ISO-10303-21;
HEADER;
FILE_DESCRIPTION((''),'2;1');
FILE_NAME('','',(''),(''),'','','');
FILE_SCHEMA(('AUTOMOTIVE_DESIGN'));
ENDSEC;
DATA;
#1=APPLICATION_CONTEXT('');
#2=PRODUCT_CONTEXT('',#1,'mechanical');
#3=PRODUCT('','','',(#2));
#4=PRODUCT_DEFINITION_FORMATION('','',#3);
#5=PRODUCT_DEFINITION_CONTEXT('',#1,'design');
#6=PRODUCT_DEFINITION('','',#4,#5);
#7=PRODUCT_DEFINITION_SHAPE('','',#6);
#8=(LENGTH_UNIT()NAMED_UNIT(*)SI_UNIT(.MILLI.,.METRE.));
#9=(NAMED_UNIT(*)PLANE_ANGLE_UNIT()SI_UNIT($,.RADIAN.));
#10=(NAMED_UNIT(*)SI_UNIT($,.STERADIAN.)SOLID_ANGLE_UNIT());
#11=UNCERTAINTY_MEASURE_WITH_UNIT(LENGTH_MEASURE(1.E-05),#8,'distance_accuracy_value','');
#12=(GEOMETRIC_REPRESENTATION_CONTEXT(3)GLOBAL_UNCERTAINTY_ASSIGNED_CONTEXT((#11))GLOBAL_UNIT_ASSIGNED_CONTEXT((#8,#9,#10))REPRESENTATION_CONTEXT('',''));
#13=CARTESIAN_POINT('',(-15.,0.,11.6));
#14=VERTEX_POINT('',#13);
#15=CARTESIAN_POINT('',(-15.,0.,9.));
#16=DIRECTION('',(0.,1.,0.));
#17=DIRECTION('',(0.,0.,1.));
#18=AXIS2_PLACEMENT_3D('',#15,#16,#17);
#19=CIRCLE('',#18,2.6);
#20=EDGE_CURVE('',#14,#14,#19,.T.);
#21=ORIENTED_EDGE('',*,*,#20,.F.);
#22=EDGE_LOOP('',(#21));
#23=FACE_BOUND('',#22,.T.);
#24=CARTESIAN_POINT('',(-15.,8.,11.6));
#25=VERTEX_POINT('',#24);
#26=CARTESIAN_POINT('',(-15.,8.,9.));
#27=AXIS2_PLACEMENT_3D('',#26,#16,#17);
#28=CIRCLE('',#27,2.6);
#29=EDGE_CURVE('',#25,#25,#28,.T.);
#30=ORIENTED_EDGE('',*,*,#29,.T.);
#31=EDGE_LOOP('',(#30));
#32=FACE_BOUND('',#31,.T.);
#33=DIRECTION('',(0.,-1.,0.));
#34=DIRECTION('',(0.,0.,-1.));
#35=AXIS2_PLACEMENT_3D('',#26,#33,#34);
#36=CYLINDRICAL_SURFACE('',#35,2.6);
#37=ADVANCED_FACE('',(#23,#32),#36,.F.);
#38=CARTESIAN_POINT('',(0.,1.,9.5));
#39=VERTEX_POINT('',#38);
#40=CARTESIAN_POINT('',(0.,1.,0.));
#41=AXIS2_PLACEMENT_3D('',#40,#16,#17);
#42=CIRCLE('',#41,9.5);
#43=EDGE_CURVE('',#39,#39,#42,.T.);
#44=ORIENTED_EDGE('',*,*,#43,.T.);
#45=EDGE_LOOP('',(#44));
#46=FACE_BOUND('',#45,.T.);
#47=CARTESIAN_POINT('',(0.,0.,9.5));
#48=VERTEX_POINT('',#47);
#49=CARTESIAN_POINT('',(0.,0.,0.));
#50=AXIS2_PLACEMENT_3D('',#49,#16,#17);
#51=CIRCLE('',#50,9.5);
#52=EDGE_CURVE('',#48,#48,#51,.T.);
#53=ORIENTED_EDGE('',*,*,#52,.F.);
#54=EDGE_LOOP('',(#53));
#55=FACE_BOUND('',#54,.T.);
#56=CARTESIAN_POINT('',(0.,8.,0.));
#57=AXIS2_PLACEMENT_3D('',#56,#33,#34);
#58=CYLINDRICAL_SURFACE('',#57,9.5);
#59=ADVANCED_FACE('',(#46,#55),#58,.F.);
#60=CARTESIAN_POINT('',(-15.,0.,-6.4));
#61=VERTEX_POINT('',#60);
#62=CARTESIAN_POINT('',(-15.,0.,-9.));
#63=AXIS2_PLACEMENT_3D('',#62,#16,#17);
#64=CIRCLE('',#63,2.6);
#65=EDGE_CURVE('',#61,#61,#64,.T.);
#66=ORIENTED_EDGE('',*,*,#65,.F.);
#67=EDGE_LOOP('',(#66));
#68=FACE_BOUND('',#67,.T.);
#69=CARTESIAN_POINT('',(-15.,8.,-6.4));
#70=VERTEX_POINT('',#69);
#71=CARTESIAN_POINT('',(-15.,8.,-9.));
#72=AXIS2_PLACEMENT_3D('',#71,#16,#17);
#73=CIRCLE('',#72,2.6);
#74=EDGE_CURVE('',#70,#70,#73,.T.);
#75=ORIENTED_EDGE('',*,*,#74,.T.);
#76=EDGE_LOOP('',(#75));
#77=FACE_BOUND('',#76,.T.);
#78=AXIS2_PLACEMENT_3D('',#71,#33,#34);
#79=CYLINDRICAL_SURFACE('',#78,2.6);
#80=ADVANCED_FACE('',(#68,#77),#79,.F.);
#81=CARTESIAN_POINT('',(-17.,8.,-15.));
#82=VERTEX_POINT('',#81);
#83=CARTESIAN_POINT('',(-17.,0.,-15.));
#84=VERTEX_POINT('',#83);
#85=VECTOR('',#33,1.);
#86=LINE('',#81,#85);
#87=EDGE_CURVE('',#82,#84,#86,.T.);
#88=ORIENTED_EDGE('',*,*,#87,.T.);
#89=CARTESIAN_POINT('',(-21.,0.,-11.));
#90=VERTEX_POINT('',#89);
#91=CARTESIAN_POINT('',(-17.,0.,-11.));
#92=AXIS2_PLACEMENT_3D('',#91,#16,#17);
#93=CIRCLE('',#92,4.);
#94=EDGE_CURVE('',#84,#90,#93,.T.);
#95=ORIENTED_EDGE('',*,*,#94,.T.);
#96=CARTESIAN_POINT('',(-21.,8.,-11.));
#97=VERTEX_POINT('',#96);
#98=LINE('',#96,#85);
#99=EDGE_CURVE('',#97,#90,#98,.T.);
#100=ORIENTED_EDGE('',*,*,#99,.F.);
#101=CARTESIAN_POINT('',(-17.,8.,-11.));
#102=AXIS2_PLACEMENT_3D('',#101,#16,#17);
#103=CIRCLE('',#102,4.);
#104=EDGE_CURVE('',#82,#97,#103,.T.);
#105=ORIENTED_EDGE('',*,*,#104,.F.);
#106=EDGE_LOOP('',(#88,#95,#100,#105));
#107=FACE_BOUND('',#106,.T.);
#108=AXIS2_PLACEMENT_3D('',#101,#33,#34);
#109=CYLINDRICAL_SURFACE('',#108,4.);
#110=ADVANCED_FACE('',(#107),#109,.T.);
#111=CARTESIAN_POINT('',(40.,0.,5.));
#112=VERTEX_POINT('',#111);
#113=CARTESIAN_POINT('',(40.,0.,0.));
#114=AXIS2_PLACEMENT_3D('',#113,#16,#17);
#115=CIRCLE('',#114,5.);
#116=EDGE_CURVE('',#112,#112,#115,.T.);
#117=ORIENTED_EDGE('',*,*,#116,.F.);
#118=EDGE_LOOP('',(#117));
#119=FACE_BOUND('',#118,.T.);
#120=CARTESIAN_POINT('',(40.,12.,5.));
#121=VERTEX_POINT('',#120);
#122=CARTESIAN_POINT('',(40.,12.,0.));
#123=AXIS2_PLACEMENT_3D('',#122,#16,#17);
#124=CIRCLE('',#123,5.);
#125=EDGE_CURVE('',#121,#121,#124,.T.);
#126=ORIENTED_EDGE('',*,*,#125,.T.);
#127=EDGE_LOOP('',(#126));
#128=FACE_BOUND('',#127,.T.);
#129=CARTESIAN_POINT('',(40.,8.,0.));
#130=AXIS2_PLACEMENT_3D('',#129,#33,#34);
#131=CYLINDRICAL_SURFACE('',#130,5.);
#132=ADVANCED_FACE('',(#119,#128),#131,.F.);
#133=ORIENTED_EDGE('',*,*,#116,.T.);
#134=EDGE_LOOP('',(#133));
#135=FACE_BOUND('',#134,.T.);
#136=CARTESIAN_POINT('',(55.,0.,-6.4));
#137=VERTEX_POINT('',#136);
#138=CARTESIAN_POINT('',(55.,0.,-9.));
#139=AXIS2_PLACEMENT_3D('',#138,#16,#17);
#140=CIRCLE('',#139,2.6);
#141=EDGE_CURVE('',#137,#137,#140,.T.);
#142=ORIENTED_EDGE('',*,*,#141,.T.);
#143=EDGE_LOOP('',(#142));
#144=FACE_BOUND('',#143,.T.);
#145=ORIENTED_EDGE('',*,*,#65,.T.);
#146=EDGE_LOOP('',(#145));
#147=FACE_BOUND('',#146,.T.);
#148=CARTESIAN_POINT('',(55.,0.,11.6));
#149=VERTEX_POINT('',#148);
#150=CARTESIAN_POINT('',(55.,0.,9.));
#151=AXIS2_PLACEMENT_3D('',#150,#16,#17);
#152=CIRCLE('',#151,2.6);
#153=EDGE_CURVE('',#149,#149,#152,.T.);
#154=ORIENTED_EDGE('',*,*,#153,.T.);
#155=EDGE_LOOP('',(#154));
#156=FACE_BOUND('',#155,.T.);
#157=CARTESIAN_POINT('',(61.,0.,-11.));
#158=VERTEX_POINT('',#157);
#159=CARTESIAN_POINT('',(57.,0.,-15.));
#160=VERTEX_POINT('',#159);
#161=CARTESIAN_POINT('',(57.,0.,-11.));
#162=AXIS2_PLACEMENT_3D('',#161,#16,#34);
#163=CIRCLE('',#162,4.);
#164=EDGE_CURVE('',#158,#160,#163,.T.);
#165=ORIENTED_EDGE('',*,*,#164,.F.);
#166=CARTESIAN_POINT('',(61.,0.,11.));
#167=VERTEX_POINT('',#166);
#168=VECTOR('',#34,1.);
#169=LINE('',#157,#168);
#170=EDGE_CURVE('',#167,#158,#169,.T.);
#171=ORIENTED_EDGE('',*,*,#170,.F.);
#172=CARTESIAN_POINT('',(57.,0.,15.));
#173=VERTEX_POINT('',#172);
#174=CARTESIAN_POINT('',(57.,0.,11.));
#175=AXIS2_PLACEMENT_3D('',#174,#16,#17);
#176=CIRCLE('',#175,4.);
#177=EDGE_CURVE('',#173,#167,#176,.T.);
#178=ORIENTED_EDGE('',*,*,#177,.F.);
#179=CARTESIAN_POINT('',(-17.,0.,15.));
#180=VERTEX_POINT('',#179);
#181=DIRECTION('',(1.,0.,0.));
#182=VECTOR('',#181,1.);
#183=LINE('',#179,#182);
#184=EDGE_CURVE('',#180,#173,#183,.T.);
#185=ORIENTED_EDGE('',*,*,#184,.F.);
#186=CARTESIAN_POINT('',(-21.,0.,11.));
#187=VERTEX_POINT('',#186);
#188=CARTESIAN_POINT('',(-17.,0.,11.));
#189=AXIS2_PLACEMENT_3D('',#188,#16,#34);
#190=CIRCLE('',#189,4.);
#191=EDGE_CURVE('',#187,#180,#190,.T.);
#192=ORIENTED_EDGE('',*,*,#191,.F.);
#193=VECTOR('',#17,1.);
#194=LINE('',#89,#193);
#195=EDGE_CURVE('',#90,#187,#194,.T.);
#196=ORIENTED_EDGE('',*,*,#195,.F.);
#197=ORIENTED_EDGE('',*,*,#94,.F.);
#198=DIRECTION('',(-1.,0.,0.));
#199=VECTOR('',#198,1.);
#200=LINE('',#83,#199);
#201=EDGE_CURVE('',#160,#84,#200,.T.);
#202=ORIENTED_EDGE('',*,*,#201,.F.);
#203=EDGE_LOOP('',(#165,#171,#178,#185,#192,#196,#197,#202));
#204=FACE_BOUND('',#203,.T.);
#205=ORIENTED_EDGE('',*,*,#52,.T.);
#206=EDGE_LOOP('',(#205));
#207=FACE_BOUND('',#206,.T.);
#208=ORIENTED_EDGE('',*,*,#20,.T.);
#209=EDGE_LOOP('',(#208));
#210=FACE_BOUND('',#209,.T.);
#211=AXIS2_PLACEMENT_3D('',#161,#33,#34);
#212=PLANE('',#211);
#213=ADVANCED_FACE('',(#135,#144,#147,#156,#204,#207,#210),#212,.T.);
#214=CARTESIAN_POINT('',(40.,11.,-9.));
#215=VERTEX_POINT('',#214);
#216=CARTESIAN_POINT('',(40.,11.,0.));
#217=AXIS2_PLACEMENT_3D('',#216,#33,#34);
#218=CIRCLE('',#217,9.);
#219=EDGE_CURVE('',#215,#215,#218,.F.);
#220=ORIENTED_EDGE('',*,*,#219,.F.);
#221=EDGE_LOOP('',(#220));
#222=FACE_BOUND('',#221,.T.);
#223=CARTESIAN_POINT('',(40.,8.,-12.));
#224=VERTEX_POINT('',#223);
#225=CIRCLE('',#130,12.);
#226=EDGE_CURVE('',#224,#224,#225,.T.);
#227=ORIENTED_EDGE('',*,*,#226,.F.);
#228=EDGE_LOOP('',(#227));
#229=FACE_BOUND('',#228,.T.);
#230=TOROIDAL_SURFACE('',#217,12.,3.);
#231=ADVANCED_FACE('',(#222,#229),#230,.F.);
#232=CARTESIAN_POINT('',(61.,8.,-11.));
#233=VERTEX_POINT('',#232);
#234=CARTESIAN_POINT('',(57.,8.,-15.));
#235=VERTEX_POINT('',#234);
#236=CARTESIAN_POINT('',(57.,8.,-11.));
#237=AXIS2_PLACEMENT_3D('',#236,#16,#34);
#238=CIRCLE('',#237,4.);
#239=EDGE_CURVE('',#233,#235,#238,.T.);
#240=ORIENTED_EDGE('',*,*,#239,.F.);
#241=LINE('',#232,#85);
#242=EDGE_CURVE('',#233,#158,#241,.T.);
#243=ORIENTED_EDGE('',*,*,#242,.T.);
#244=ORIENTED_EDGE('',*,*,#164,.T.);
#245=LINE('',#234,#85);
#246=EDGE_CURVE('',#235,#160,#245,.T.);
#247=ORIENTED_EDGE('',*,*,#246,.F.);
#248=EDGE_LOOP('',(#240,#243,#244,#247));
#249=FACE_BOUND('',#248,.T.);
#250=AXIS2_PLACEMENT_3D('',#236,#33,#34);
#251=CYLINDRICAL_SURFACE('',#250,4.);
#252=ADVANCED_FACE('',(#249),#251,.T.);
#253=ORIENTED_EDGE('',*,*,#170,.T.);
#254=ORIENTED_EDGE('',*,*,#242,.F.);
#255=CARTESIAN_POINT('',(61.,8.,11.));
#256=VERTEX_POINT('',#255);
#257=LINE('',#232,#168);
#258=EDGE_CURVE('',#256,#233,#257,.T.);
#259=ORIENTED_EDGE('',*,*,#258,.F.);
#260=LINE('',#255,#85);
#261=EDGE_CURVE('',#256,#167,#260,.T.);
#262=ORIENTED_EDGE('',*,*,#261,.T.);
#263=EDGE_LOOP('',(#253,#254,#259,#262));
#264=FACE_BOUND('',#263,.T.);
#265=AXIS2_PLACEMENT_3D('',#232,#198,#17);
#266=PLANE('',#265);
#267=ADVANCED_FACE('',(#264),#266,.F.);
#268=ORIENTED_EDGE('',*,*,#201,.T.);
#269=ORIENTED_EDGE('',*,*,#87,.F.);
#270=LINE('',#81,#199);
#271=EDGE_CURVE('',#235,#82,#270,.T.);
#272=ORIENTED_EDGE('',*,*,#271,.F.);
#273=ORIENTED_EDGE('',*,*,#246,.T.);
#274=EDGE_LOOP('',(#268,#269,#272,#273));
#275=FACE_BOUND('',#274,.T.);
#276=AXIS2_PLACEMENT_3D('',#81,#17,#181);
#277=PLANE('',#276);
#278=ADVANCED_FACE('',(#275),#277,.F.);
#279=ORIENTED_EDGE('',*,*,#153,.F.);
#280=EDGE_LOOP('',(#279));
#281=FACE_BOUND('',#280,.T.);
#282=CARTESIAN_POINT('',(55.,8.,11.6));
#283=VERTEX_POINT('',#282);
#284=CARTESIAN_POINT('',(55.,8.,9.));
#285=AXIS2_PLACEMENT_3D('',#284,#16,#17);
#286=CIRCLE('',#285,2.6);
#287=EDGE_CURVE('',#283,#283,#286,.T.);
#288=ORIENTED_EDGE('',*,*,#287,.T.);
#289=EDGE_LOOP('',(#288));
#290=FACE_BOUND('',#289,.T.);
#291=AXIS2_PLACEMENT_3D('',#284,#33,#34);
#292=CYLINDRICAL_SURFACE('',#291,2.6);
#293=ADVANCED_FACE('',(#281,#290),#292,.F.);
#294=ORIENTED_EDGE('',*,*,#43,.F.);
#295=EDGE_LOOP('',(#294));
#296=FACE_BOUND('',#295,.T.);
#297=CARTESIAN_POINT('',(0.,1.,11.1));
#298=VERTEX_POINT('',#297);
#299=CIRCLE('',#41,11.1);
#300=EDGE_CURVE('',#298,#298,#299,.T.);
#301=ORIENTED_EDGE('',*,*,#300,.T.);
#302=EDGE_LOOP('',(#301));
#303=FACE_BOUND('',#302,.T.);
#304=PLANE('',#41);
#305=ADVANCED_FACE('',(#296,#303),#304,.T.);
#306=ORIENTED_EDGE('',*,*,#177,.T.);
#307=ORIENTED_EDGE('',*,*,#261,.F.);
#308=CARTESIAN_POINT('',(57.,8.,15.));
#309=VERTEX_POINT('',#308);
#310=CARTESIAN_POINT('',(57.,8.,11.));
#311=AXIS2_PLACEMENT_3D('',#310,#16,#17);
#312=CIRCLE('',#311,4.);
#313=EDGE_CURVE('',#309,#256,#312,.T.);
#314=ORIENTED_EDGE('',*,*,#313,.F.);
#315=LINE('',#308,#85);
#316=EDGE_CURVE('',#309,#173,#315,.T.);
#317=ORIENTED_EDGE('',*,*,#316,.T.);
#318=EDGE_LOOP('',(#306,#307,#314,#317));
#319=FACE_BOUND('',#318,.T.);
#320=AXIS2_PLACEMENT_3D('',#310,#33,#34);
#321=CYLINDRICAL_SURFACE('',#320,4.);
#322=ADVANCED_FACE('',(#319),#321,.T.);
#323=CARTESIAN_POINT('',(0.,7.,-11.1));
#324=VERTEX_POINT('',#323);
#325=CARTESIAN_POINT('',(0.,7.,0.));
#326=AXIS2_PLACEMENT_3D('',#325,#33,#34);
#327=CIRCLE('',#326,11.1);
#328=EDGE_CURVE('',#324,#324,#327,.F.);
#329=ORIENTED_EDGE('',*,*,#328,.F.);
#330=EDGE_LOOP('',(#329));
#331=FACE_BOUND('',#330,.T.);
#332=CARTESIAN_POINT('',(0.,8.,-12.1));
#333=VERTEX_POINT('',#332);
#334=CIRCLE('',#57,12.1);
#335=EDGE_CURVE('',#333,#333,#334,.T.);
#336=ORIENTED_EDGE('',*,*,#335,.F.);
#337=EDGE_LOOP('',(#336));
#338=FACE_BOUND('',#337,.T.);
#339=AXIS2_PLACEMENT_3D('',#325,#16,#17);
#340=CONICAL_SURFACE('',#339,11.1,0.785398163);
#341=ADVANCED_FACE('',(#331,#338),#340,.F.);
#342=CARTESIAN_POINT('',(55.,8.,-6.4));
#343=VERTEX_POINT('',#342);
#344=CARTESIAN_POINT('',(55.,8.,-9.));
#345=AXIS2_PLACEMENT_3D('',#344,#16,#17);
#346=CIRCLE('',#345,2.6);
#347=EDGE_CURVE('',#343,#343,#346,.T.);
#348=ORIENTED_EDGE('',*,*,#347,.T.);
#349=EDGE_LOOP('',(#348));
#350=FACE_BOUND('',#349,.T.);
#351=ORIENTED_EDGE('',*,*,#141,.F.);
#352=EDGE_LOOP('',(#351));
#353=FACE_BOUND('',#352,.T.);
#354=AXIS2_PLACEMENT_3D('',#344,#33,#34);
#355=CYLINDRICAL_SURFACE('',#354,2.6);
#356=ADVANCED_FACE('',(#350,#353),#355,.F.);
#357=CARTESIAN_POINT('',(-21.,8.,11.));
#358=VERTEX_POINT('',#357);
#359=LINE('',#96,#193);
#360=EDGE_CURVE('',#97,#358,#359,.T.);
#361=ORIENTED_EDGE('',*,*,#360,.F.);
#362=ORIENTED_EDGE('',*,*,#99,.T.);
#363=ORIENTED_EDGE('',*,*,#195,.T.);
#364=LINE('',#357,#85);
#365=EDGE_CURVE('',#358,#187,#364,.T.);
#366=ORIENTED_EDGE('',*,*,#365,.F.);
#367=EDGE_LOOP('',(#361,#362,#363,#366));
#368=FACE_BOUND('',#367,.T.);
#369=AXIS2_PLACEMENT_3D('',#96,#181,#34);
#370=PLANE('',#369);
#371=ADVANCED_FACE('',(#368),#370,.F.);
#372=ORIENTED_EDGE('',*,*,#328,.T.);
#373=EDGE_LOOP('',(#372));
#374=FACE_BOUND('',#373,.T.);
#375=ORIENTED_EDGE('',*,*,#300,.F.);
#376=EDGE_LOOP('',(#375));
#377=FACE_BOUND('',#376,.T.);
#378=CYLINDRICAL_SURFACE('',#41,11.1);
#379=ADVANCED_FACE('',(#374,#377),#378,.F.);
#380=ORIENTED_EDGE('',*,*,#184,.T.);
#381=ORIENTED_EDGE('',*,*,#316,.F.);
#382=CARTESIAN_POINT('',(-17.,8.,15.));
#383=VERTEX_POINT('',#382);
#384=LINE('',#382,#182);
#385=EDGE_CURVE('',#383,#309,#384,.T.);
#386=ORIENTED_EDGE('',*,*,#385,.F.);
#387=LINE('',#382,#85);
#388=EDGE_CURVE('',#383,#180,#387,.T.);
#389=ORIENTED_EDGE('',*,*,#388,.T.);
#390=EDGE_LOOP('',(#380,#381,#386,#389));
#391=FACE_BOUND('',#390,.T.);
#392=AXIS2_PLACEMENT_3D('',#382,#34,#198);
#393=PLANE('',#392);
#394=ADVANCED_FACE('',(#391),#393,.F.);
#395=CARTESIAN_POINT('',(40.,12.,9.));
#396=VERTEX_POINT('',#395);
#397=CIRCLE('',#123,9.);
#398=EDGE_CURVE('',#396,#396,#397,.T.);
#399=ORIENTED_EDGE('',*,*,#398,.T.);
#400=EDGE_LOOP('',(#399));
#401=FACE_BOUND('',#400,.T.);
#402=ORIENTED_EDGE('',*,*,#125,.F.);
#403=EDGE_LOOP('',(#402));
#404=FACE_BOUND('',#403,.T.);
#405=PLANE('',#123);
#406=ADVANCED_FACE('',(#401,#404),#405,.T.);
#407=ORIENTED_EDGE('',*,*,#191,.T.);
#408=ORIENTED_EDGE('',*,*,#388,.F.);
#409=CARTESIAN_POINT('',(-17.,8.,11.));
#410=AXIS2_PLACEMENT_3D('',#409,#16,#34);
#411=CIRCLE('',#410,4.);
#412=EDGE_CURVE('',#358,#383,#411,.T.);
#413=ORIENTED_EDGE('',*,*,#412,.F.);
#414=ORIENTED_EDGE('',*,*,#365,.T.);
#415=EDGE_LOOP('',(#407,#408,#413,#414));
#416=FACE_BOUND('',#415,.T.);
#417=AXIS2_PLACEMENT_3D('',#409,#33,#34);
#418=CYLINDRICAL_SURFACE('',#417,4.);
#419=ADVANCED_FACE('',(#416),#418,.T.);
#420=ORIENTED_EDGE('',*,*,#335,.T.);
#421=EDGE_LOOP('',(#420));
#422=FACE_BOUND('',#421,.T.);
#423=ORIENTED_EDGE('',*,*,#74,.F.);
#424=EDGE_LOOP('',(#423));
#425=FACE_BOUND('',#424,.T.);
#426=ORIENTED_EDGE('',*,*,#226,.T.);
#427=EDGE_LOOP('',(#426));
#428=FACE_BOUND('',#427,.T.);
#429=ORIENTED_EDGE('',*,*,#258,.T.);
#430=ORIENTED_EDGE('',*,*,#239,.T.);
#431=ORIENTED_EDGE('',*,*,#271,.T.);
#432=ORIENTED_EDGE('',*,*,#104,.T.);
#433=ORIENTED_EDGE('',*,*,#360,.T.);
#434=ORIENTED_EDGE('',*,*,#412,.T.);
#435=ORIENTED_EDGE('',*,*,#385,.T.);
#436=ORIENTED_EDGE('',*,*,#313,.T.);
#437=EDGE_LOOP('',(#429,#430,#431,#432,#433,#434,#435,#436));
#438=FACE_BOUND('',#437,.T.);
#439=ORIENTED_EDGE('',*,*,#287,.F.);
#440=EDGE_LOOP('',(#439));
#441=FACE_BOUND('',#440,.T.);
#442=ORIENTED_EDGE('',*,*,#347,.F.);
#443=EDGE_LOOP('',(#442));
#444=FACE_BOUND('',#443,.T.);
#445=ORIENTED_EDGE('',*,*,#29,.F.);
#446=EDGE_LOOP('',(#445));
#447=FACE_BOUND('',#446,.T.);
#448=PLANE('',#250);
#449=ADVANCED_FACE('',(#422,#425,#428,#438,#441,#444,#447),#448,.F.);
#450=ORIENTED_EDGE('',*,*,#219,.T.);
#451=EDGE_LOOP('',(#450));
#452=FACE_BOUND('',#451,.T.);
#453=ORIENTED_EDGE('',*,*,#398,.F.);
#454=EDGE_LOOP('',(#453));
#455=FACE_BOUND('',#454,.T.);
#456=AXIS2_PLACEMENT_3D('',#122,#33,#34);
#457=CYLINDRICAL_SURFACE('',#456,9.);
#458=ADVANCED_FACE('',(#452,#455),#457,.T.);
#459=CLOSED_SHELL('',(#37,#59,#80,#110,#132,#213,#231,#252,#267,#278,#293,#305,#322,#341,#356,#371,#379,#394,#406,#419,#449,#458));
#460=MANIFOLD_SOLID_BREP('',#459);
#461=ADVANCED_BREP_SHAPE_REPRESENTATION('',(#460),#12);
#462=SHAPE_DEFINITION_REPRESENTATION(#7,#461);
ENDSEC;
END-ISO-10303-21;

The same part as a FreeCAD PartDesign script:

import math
import FreeCAD as App
import Part
import Sketcher
from FreeCAD import Vector


def edges_at(feature, points):
    """Names of the edges that pass closest to the given points."""
    edges = feature.Shape.Edges
    near = lambda p: min(range(len(edges)), key=lambda i: edges[i].distToShape(Part.Vertex(*p))[0])
    return sorted({f"Edge{near(p) + 1}" for p in points})

doc = App.newDocument("Part")
body = doc.addObject("PartDesign::Body", "Body")

sketch1 = doc.addObject("Sketcher::SketchObject", "Sketch")
body.addObject(sketch1)
sketch1.AttachmentSupport = (doc.XZ_Plane, [""])
sketch1.MapMode = "FlatFace"
sketch1.addGeometry([
    Part.LineSegment(Vector(57, -15, 0), Vector(-17, -15, 0)),
    Part.ArcOfCircle(Part.Circle(Vector(-17, -11, 0), Vector(0, 0, 1), 4), math.radians(180), math.radians(270)),
    Part.LineSegment(Vector(-21, -11, 0), Vector(-21, 11, 0)),
    Part.ArcOfCircle(Part.Circle(Vector(-17, 11, 0), Vector(0, 0, 1), 4), math.radians(90), math.radians(180)),
    Part.LineSegment(Vector(-17, 15, 0), Vector(57, 15, 0)),
    Part.ArcOfCircle(Part.Circle(Vector(57, 11, 0), Vector(0, 0, 1), 4), math.radians(0), math.radians(90)),
    Part.LineSegment(Vector(61, 11, 0), Vector(61, -11, 0)),
    Part.ArcOfCircle(Part.Circle(Vector(57, -11, 0), Vector(0, 0, 1), 4), math.radians(-90), math.radians(0)),
    Part.Circle(Vector(55, 9, 0), Vector(0, 0, 1), 2.6),
    Part.Circle(Vector(-15, 9, 0), Vector(0, 0, 1), 2.6),
    Part.Circle(Vector(40, 0, 0), Vector(0, 0, 1), 5),
    Part.Circle(Vector(55, -9, 0), Vector(0, 0, 1), 2.6),
    Part.Circle(Vector(0, 0, 0), Vector(0, 0, 1), 9.5),
    Part.Circle(Vector(-15, -9, 0), Vector(0, 0, 1), 2.6),
], False)
sketch1.addConstraint([
    Sketcher.Constraint("Tangent", 0, 2, 1, 2),
    Sketcher.Constraint("Tangent", 1, 1, 2, 1),
    Sketcher.Constraint("Tangent", 2, 2, 3, 2),
    Sketcher.Constraint("Tangent", 3, 1, 4, 1),
    Sketcher.Constraint("Tangent", 4, 2, 5, 2),
    Sketcher.Constraint("Tangent", 5, 1, 6, 1),
    Sketcher.Constraint("Tangent", 6, 2, 7, 2),
    Sketcher.Constraint("Tangent", 7, 1, 0, 1),
    Sketcher.Constraint("Horizontal", 0),
    Sketcher.Constraint("Vertical", 2),
    Sketcher.Constraint("Horizontal", 4),
    Sketcher.Constraint("Vertical", 6),
    Sketcher.Constraint("Coincident", 12, 3, -1, 1),
    Sketcher.Constraint("Equal", 1, 3),
    Sketcher.Constraint("Equal", 3, 5),
    Sketcher.Constraint("Equal", 5, 7),
    Sketcher.Constraint("Equal", 8, 9),
    Sketcher.Constraint("Equal", 9, 11),
    Sketcher.Constraint("Equal", 11, 13),
    Sketcher.Constraint("Symmetric", 8, 3, 11, 3, -1),
    Sketcher.Constraint("Symmetric", 9, 3, 13, 3, -1),
    Sketcher.Constraint("PointOnObject", 10, 3, -1),
    Sketcher.Constraint("Horizontal", 8, 3, 9, 3),
    Sketcher.Constraint("Diameter", 10, 10.0),
    Sketcher.Constraint("Diameter", 12, 19.0),
    Sketcher.Constraint("Radius", 1, 4.0),
    Sketcher.Constraint("Diameter", 8, 5.2),
    Sketcher.Constraint("DistanceX", 0, 2, 0, 1, 74.0),
    Sketcher.Constraint("DistanceY", 2, 1, 2, 2, 22.0),
    Sketcher.Constraint("DistanceX", 1, 3, -1, 1, 17.0),
    Sketcher.Constraint("DistanceY", 1, 3, -1, 1, 11.0),
    Sketcher.Constraint("DistanceX", -1, 1, 8, 3, 55.0),
    Sketcher.Constraint("DistanceY", -1, 1, 8, 3, 9.0),
    Sketcher.Constraint("DistanceX", 9, 3, -1, 1, 15.0),
    Sketcher.Constraint("DistanceX", -1, 1, 10, 3, 40.0),
])
pad1 = doc.addObject("PartDesign::Pad", "Pad")
body.addObject(pad1)
pad1.Profile = sketch1
pad1.Length = 8
pad1.Reversed = True

sketch2 = doc.addObject("Sketcher::SketchObject", "Sketch001")
body.addObject(sketch2)
sketch2.AttachmentSupport = (doc.XZ_Plane, [""])
sketch2.MapMode = "FlatFace"
sketch2.AttachmentOffset = App.Placement(Vector(0, 0, -8), App.Rotation())
sketch2.addGeometry(Part.Circle(Vector(0, 0, 0), Vector(0, 0, 1), 11), False)
sketch2.addConstraint([
    Sketcher.Constraint("Coincident", 0, 3, -1, 1),
    Sketcher.Constraint("Diameter", 0, 22.2),
])
pocket1 = doc.addObject("PartDesign::Pocket", "Pocket")
body.addObject(pocket1)
pocket1.Profile = sketch2
pocket1.Length = 7
pocket1.Reversed = True

sketch3 = doc.addObject("Sketcher::SketchObject", "Sketch002")
body.addObject(sketch3)
sketch3.AttachmentSupport = (doc.XZ_Plane, [""])
sketch3.MapMode = "FlatFace"
sketch3.AttachmentOffset = App.Placement(Vector(0, 0, -8), App.Rotation())
sketch3.addGeometry([
    Part.Circle(Vector(40, 0, 0), Vector(0, 0, 1), 9),
    Part.Circle(Vector(40, 0, 0), Vector(0, 0, 1), 5),
], False)
sketch3.addConstraint([
    Sketcher.Constraint("Coincident", 1, 3, 0, 3),
    Sketcher.Constraint("PointOnObject", 0, 3, -1),
    Sketcher.Constraint("Diameter", 0, 18.0),
    Sketcher.Constraint("Diameter", 1, 10.0),
    Sketcher.Constraint("DistanceX", -1, 1, 0, 3, 40.0),
])
pad2 = doc.addObject("PartDesign::Pad", "Pad001")
body.addObject(pad2)
pad2.Profile = sketch3
pad2.Length = 4
pad2.Reversed = True
doc.recompute()

fillet = doc.addObject("PartDesign::Fillet", "Fillet")
body.addObject(fillet)
fillet.Base = (pad2, edges_at(pad2, [(40, 8, 9)]))
fillet.Radius = 3
doc.recompute()

chamfer = doc.addObject("PartDesign::Chamfer", "Chamfer")
body.addObject(chamfer)
chamfer.Base = (fillet, edges_at(fillet, [(0, 8, -11.1)]))
chamfer.Size = 1

doc.recompute()
